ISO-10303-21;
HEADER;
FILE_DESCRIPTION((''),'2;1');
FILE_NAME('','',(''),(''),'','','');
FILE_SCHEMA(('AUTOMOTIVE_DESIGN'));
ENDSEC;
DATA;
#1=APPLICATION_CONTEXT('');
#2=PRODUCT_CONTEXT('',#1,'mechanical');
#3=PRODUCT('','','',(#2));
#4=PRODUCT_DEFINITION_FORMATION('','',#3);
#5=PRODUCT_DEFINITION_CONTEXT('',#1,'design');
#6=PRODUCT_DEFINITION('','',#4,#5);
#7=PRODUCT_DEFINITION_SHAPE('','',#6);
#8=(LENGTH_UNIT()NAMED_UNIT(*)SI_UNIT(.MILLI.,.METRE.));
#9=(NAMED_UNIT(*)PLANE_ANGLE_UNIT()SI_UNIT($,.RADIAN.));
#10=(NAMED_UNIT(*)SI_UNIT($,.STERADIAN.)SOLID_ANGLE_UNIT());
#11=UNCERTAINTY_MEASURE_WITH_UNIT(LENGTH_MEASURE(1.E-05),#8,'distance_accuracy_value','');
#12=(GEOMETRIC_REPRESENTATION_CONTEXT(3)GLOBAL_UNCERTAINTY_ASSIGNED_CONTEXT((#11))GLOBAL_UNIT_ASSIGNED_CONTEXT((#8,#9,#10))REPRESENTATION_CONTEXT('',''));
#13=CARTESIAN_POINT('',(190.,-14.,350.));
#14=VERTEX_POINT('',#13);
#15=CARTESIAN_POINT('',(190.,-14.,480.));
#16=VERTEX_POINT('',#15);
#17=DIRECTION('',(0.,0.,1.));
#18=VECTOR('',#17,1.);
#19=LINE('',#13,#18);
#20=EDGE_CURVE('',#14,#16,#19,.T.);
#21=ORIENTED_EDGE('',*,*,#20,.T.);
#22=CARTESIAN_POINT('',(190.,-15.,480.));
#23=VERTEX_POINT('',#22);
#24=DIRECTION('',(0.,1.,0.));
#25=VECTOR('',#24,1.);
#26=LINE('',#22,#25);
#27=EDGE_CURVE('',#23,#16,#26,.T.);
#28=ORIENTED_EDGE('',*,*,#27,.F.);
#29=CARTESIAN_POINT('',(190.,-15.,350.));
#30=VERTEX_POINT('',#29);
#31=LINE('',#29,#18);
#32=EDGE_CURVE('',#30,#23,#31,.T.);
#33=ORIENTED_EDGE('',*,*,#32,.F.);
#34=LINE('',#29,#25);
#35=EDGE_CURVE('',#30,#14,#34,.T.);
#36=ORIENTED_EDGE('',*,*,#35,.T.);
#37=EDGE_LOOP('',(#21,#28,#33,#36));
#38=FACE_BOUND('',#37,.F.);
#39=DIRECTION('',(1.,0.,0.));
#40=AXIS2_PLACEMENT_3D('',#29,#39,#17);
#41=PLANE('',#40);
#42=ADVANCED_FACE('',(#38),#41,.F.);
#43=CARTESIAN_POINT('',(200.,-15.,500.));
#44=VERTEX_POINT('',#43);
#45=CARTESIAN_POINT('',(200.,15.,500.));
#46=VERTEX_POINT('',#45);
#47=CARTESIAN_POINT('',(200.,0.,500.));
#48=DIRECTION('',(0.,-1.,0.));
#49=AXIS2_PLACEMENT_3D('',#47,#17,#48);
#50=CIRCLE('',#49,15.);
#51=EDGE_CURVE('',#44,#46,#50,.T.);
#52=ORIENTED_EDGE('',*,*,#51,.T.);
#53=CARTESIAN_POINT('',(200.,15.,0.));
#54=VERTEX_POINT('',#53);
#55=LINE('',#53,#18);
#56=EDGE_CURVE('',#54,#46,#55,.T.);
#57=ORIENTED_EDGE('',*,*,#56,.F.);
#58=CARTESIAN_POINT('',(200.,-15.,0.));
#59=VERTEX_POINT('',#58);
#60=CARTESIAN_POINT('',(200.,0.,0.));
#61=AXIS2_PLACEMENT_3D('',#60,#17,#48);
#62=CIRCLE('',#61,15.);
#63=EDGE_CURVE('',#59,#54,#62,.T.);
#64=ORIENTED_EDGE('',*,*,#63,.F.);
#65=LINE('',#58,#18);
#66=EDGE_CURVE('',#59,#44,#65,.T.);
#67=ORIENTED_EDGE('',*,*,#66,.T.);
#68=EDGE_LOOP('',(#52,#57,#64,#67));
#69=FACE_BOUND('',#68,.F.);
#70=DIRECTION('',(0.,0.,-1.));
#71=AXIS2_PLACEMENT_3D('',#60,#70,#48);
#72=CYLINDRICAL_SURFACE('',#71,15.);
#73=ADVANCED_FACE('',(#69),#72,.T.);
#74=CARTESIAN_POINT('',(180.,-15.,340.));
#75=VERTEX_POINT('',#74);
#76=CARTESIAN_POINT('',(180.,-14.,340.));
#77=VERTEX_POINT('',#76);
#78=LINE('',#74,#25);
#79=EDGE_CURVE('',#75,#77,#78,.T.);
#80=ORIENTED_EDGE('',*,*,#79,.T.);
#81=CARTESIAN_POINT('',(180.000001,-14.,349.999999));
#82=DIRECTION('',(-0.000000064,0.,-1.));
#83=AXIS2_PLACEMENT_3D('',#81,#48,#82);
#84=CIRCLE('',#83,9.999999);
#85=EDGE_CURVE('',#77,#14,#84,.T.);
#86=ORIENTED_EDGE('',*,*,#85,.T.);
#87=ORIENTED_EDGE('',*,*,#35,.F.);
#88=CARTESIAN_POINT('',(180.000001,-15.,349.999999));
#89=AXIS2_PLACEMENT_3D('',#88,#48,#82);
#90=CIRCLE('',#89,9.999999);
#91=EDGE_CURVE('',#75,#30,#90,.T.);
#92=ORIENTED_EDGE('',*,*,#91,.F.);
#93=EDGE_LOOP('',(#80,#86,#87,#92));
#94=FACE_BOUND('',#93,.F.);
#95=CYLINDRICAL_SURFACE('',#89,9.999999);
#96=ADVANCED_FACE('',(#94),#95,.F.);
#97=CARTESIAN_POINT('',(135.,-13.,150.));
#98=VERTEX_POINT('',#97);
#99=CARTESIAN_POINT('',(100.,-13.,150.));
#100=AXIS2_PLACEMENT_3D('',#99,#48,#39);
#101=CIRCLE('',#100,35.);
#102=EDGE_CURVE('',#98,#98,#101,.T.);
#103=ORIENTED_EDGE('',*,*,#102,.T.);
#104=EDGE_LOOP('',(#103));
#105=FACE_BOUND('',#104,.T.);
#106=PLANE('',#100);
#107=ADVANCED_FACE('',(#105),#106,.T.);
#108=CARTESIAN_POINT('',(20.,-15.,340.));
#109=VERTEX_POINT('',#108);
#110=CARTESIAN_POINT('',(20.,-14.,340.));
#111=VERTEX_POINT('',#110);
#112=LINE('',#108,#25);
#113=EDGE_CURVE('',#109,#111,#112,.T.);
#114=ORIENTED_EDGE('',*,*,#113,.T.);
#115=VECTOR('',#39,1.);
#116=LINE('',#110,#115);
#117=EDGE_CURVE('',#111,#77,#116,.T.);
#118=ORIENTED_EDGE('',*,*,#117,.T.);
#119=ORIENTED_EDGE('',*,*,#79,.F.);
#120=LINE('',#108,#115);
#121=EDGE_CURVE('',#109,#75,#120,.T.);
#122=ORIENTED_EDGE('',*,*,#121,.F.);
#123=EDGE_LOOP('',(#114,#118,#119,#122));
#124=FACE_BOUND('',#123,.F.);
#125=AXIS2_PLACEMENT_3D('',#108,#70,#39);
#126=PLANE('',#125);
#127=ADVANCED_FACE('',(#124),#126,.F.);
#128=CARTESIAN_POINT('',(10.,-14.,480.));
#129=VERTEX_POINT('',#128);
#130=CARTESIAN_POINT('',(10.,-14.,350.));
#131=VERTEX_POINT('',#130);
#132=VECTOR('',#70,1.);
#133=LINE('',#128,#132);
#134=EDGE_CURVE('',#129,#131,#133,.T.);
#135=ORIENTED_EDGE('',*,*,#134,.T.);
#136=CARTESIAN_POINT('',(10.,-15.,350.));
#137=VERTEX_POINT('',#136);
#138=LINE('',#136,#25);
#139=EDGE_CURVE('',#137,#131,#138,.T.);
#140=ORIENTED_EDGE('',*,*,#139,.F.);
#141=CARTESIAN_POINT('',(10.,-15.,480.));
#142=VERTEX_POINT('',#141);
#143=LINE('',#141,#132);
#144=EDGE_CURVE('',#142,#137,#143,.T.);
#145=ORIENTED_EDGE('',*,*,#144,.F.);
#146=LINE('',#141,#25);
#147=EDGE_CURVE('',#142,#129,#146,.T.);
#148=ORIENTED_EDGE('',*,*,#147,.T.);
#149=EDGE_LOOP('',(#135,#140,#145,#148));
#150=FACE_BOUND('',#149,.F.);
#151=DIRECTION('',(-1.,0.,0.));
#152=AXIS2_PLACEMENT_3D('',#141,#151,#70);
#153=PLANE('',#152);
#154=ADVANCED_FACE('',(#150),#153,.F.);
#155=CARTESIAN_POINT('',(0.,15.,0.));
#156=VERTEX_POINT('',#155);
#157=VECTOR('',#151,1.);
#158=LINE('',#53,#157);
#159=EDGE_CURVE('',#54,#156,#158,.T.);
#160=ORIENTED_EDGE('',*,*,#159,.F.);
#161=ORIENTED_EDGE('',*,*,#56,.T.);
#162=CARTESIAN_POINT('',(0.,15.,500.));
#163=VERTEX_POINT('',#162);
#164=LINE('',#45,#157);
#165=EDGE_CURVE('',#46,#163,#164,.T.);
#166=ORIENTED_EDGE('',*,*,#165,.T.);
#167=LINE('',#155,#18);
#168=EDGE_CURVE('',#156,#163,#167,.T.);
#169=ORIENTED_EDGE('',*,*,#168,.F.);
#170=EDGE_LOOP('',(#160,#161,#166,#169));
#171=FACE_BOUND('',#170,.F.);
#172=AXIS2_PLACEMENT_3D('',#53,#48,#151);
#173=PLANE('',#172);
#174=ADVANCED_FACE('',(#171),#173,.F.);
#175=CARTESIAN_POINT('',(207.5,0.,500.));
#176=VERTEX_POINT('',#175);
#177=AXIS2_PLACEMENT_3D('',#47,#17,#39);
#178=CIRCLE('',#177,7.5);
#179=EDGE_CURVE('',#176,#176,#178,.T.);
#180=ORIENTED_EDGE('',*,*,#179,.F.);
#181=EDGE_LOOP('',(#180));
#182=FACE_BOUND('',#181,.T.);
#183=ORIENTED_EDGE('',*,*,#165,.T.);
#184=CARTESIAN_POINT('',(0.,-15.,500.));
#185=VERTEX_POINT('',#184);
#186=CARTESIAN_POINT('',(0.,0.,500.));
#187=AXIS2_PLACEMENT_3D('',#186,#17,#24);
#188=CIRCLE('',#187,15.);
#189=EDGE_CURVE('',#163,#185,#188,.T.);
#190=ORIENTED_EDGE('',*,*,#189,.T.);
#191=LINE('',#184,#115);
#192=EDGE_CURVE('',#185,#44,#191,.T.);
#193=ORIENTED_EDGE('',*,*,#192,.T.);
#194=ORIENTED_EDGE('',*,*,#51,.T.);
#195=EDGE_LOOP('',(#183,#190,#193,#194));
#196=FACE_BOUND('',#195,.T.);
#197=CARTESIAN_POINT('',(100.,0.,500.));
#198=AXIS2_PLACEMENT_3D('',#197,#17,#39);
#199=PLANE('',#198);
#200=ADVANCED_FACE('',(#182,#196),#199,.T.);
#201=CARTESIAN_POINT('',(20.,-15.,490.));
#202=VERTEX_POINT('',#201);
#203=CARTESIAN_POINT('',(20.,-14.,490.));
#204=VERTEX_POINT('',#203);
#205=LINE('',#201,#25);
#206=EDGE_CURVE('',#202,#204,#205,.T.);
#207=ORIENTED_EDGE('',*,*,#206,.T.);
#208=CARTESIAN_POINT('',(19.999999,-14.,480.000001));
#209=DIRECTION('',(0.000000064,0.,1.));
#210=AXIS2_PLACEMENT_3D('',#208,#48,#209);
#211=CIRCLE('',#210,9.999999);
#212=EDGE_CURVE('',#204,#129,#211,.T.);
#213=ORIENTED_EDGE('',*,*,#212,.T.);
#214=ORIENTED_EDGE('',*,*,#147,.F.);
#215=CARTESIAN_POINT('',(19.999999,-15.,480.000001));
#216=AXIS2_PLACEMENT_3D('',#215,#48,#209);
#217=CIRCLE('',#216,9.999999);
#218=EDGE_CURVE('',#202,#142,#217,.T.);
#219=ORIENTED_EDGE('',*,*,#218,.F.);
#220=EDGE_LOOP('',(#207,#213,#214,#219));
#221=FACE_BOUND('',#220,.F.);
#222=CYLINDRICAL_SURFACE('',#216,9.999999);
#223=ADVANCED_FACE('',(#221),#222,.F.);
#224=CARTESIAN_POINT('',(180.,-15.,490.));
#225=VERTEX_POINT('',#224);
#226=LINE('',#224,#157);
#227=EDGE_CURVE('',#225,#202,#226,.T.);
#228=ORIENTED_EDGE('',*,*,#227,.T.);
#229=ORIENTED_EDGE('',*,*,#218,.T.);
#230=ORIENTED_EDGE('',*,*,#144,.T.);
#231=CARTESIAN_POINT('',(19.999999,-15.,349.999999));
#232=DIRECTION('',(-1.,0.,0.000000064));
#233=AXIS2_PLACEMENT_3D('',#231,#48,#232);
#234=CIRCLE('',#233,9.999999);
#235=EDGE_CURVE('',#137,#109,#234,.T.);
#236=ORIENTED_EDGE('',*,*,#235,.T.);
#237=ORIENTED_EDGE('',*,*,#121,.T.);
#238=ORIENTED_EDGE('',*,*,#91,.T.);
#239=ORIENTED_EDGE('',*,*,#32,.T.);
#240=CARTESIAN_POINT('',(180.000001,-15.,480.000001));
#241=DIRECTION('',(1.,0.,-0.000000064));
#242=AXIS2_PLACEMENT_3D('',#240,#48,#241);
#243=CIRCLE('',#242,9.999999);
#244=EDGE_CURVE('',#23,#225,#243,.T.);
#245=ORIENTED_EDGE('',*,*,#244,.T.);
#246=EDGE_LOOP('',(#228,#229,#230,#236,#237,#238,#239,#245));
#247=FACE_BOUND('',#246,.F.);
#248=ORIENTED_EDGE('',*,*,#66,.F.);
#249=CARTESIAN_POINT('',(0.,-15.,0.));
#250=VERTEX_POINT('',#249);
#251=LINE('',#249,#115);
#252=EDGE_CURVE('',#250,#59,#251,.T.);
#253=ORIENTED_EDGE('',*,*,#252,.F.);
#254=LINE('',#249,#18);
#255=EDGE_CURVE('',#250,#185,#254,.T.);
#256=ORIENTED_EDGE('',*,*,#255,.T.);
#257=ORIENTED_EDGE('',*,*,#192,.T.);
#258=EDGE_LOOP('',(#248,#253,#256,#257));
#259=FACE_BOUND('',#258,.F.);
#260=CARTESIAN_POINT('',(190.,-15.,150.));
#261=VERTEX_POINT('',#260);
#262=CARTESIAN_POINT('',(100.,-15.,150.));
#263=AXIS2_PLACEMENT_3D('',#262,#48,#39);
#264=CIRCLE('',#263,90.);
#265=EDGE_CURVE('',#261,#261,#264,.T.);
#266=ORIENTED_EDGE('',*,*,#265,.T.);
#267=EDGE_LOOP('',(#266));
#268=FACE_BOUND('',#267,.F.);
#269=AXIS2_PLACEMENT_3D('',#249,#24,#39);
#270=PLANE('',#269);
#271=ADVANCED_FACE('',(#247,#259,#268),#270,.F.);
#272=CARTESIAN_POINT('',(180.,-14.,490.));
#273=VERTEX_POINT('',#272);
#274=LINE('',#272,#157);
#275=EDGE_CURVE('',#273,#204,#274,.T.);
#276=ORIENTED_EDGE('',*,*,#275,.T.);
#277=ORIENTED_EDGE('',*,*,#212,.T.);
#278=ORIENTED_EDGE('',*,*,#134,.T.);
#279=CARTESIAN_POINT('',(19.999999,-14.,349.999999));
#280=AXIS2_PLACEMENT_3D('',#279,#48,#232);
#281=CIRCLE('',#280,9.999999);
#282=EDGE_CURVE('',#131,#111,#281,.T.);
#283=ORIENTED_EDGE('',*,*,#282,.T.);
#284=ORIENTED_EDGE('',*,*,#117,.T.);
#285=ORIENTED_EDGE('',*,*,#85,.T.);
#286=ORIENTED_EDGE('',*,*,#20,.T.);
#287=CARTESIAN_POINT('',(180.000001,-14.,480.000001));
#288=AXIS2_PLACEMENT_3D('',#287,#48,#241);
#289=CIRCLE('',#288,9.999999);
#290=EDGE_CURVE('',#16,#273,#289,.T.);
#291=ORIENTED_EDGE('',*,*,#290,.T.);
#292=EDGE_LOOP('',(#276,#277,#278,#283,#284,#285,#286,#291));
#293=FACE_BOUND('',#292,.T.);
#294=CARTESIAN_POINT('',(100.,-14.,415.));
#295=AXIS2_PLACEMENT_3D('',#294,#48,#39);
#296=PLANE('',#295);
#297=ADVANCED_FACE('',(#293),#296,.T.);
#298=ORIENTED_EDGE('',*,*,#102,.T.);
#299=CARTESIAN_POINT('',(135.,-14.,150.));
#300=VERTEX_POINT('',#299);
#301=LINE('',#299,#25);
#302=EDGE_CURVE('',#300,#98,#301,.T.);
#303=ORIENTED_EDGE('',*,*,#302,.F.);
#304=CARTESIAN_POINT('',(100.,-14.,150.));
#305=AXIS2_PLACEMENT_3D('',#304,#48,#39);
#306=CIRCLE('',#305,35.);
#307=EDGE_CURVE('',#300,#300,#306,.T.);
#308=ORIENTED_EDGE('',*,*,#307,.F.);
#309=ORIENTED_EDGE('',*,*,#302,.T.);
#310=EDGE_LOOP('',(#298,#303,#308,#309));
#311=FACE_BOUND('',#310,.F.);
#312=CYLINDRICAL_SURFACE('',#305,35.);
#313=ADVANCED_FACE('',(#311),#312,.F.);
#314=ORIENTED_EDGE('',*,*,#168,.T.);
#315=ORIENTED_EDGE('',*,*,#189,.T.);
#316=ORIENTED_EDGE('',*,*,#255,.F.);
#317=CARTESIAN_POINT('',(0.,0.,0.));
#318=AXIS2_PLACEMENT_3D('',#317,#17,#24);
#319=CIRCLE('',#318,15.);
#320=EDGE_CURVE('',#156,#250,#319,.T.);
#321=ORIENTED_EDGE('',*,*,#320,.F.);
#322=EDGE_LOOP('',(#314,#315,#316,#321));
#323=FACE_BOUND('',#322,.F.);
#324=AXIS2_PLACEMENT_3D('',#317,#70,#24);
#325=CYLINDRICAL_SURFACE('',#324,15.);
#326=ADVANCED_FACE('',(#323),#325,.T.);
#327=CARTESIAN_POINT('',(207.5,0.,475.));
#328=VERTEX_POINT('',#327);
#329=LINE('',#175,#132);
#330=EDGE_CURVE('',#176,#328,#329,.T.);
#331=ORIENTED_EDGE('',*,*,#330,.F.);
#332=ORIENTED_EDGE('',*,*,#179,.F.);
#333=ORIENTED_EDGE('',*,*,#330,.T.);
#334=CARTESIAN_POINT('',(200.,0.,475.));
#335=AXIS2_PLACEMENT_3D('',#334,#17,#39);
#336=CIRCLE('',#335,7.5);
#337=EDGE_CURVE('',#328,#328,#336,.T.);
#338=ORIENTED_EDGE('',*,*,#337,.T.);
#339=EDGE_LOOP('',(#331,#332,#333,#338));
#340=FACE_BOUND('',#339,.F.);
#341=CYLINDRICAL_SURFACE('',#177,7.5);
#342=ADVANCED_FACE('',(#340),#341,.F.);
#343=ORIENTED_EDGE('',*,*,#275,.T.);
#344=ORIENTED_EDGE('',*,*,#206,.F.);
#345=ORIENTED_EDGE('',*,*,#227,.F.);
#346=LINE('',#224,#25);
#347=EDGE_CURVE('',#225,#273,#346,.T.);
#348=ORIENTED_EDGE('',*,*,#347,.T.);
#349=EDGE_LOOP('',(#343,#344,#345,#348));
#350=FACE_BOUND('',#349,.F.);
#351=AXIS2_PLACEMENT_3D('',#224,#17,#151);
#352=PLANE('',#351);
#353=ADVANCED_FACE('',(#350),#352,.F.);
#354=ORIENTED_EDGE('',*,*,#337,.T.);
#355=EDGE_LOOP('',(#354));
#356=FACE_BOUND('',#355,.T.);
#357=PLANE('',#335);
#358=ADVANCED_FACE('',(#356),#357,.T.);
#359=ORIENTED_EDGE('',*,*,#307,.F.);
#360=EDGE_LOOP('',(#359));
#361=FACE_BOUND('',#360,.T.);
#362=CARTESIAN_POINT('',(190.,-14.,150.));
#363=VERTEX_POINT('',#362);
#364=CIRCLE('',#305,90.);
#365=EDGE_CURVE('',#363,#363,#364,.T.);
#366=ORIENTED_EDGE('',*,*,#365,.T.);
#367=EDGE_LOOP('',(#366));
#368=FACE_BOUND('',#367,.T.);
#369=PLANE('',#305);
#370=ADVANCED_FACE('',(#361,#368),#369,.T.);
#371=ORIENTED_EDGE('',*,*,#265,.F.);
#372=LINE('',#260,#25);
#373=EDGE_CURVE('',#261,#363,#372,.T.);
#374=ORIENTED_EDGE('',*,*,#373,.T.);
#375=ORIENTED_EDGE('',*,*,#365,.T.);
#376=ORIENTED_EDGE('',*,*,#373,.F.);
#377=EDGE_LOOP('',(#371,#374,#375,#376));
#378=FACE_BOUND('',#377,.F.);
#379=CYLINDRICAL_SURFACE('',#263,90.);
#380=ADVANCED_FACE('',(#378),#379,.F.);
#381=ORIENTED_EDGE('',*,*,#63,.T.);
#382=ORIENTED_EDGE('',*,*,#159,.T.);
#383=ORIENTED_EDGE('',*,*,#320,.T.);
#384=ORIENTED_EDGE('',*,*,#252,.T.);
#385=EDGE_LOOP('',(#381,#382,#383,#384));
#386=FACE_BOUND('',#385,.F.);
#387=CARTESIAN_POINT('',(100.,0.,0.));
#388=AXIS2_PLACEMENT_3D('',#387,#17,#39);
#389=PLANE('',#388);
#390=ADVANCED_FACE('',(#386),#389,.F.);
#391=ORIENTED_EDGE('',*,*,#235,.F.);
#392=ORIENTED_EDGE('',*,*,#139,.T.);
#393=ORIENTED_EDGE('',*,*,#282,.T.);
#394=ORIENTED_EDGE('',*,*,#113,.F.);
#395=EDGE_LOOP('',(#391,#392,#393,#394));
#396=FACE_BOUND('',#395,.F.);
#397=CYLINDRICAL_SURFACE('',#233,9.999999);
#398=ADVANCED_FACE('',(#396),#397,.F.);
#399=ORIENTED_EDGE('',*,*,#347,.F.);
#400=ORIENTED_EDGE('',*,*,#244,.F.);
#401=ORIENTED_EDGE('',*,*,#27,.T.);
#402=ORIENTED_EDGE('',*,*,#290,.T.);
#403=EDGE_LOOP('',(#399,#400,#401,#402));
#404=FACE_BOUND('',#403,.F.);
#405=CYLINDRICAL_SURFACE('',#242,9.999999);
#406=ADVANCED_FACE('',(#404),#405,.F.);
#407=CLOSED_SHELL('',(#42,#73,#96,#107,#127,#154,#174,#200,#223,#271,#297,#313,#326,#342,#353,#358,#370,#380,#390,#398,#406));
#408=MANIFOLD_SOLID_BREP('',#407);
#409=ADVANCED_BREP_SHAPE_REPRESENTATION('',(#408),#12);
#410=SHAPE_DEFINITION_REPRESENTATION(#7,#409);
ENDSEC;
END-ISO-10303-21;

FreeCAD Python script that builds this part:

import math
import FreeCAD as App
import Part
import Sketcher
from FreeCAD import Vector
Q = App.Units.Quantity

doc = App.newDocument("Part")
body = doc.addObject("PartDesign::Body", "Body")

sketch1 = body.newObject("Sketcher::SketchObject", "Sketch")
sketch1.AttachmentSupport = (doc.getObject("XY_Plane"), [""])
sketch1.MapMode = "FlatFace"
sketch1.addGeometry(Part.LineSegment(Vector(200, 15, 0), Vector(0, 15, 0)), False)
sketch1.addGeometry(Part.ArcOfCircle(Part.Circle(Vector(0, 0, 0), Vector(0, 0, 1), 15), math.radians(90), math.radians(270)), False)
sketch1.addGeometry(Part.LineSegment(Vector(0, -15, 0), Vector(200, -15, 0)), False)
sketch1.addGeometry(Part.ArcOfCircle(Part.Circle(Vector(200, 0, 0), Vector(0, 0, 1), 15), math.radians(-90), math.radians(90)), False)
sketch1.addConstraint(Sketcher.Constraint("Tangent", 0, 2, 1, 1))
sketch1.addConstraint(Sketcher.Constraint("Tangent", 1, 2, 2, 1))
sketch1.addConstraint(Sketcher.Constraint("Tangent", 2, 2, 3, 1))
sketch1.addConstraint(Sketcher.Constraint("Tangent", 3, 2, 0, 1))
sketch1.addConstraint(Sketcher.Constraint("Horizontal", 0))
sketch1.addConstraint(Sketcher.Constraint("Horizontal", 2))
sketch1.addConstraint(Sketcher.Constraint("Coincident", 1, 3, -1, 1))
sketch1.addConstraint(Sketcher.Constraint("Radius", 1, Q("15 mm")))
sketch1.addConstraint(Sketcher.Constraint("DistanceX", 0, 2, 0, 1, Q("200 mm")))
pad1 = body.newObject("PartDesign::Pad", "Pad")
pad1.Profile = sketch1
pad1.Length = 500

sketch2 = body.newObject("Sketcher::SketchObject", "Sketch001")
sketch2.AttachmentSupport = (doc.getObject("XZ_Plane"), [""])
sketch2.MapMode = "FlatFace"
sketch2.AttachmentOffset = App.Placement(Vector(0, 0, 15), App.Rotation())
sketch2.addGeometry(Part.LineSegment(Vector(180, 490, 0), Vector(20, 490, 0)), False)
sketch2.addGeometry(Part.ArcOfCircle(Part.Circle(Vector(20, 480, 0), Vector(0, 0, 1), 10), math.radians(90), math.radians(180)), False)
sketch2.addGeometry(Part.LineSegment(Vector(10, 480, 0), Vector(10, 350, 0)), False)
sketch2.addGeometry(Part.ArcOfCircle(Part.Circle(Vector(20, 350, 0), Vector(0, 0, 1), 10), math.radians(180), math.radians(270)), False)
sketch2.addGeometry(Part.LineSegment(Vector(20, 340, 0), Vector(180, 340, 0)), False)
sketch2.addGeometry(Part.ArcOfCircle(Part.Circle(Vector(180, 350, 0), Vector(0, 0, 1), 10), math.radians(-90), math.radians(0)), False)
sketch2.addGeometry(Part.LineSegment(Vector(190, 350, 0), Vector(190, 480, 0)), False)
sketch2.addGeometry(Part.ArcOfCircle(Part.Circle(Vector(180, 480, 0), Vector(0, 0, 1), 10), math.radians(0), math.radians(90)), False)
sketch2.addConstraint(Sketcher.Constraint("Tangent", 0, 2, 1, 1))
sketch2.addConstraint(Sketcher.Constraint("Tangent", 1, 2, 2, 1))
sketch2.addConstraint(Sketcher.Constraint("Tangent", 2, 2, 3, 1))
sketch2.addConstraint(Sketcher.Constraint("Tangent", 3, 2, 4, 1))
sketch2.addConstraint(Sketcher.Constraint("Tangent", 4, 2, 5, 1))
sketch2.addConstraint(Sketcher.Constraint("Tangent", 5, 2, 6, 1))
sketch2.addConstraint(Sketcher.Constraint("Tangent", 6, 2, 7, 1))
sketch2.addConstraint(Sketcher.Constraint("Tangent", 7, 2, 0, 1))
sketch2.addConstraint(Sketcher.Constraint("Horizontal", 0))
sketch2.addConstraint(Sketcher.Constraint("Vertical", 2))
sketch2.addConstraint(Sketcher.Constraint("Horizontal", 4))
sketch2.addConstraint(Sketcher.Constraint("Vertical", 6))
sketch2.addConstraint(Sketcher.Constraint("Equal", 1, 3))
sketch2.addConstraint(Sketcher.Constraint("Equal", 3, 5))
sketch2.addConstraint(Sketcher.Constraint("Equal", 5, 7))
sketch2.addConstraint(Sketcher.Constraint("Radius", 1, Q("9.999999 mm")))
sketch2.addConstraint(Sketcher.Constraint("DistanceX", 0, 2, 0, 1, Q("160 mm")))
sketch2.addConstraint(Sketcher.Constraint("DistanceY", 2, 2, 2, 1, Q("130 mm")))
sketch2.addConstraint(Sketcher.Constraint("DistanceX", -1, 1, 1, 3, Q("19.999999 mm")))
sketch2.addConstraint(Sketcher.Constraint("DistanceY", -1, 1, 1, 3, Q("480.000001 mm")))
pocket1 = body.newObject("PartDesign::Pocket", "Pocket")
pocket1.Profile = sketch2
pocket1.Length = 1

sketch3 = body.newObject("Sketcher::SketchObject", "Sketch002")
sketch3.AttachmentSupport = (doc.getObject("XZ_Plane"), [""])
sketch3.MapMode = "FlatFace"
sketch3.AttachmentOffset = App.Placement(Vector(0, 0, 15), App.Rotation())
sketch3.addGeometry(Part.Circle(Vector(100, 150, 0), Vector(0, 0, 1), 90), False)
sketch3.addConstraint(Sketcher.Constraint("Diameter", 0, Q("180 mm")))
sketch3.addConstraint(Sketcher.Constraint("DistanceX", -1, 1, 0, 3, Q("100 mm")))
sketch3.addConstraint(Sketcher.Constraint("DistanceY", -1, 1, 0, 3, Q("150 mm")))
pocket2 = body.newObject("PartDesign::Pocket", "Pocket001")
pocket2.Profile = sketch3
pocket2.Length = 1

sketch4 = body.newObject("Sketcher::SketchObject", "Sketch003")
sketch4.AttachmentSupport = (doc.getObject("XZ_Plane"), [""])
sketch4.MapMode = "FlatFace"
sketch4.AttachmentOffset = App.Placement(Vector(0, 0, 14), App.Rotation())
sketch4.addGeometry(Part.Circle(Vector(100, 150, 0), Vector(0, 0, 1), 35), False)
sketch4.addConstraint(Sketcher.Constraint("Diameter", 0, Q("70 mm")))
sketch4.addConstraint(Sketcher.Constraint("DistanceX", -1, 1, 0, 3, Q("100 mm")))
sketch4.addConstraint(Sketcher.Constraint("DistanceY", -1, 1, 0, 3, Q("150 mm")))
pocket3 = body.newObject("PartDesign::Pocket", "Pocket002")
pocket3.Profile = sketch4
pocket3.Length = 1

sketch5 = body.newObject("Sketcher::SketchObject", "Sketch004")
sketch5.AttachmentSupport = (doc.getObject("XY_Plane"), [""])
sketch5.MapMode = "FlatFace"
sketch5.AttachmentOffset = App.Placement(Vector(0, 0, 500), App.Rotation())
sketch5.addGeometry(Part.Circle(Vector(200, 0, 0), Vector(0, 0, 1), 8), False)
sketch5.addConstraint(Sketcher.Constraint("PointOnObject", 0, 3, -1))
sketch5.addConstraint(Sketcher.Constraint("Diameter", 0, Q("15 mm")))
sketch5.addConstraint(Sketcher.Constraint("DistanceX", -1, 1, 0, 3, Q("200 mm")))
pocket4 = body.newObject("PartDesign::Pocket", "Pocket003")
pocket4.Profile = sketch5
pocket4.Length = 25

doc.recompute()
